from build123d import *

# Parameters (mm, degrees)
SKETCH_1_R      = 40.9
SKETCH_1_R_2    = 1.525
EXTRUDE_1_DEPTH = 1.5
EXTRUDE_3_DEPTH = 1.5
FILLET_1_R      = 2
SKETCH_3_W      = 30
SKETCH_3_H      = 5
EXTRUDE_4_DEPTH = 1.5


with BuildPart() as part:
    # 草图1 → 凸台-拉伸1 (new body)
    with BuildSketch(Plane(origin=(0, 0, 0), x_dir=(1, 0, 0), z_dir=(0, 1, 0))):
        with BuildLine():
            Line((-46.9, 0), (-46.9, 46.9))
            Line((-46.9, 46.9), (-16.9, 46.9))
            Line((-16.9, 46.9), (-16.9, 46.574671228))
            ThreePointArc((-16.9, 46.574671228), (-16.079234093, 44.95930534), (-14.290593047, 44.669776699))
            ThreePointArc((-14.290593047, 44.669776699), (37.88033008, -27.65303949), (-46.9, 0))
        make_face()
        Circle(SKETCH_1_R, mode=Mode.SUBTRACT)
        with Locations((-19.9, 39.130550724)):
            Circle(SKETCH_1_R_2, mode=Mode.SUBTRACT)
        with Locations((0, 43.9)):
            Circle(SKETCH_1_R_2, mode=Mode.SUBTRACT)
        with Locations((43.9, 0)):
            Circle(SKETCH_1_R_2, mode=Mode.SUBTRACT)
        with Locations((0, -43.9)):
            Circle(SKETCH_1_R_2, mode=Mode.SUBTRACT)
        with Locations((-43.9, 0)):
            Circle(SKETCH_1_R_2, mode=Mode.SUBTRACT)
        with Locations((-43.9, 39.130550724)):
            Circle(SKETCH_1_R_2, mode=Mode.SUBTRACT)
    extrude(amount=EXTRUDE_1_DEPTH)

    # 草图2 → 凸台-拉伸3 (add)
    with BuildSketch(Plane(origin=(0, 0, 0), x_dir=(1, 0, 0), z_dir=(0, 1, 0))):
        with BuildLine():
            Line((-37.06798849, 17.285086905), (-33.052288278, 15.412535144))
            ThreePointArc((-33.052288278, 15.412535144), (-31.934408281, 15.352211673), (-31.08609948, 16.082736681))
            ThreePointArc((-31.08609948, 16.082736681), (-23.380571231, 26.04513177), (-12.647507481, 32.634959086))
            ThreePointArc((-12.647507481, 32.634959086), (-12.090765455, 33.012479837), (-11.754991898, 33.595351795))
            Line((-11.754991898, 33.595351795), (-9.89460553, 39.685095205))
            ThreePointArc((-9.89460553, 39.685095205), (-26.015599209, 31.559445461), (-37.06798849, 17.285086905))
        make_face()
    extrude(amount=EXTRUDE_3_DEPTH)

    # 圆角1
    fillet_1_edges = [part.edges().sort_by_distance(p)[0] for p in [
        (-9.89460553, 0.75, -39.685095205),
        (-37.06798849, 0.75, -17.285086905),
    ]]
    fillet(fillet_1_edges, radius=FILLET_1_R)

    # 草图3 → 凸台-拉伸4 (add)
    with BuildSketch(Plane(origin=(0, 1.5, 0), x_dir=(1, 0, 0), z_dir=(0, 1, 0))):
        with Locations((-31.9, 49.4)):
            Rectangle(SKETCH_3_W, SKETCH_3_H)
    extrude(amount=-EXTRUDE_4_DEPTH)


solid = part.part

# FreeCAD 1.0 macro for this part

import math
import FreeCAD as App
import Part
import Sketcher
Q = App.Units.Quantity


def edges_at(feature, points):
    """Names of the edges that pass closest to the given points."""
    edges = feature.Shape.Edges
    near = lambda p: min(range(len(edges)), key=lambda i: edges[i].distToShape(Part.Vertex(*p))[0])
    return sorted({f"Edge{near(p) + 1}" for p in points})


def add_polygon(sketch, points):
    """Adds a closed chain of lines whose ends are joined by coincident constraints."""
    first, n = sketch.GeometryCount, len(points)
    for a, b in zip(points, points[1:] + points[:1]):
        sketch.addGeometry(Part.LineSegment(App.Vector(*a, 0), App.Vector(*b, 0)), False)
    for i in range(n):
        sketch.addConstraint(Sketcher.Constraint("Coincident", first + i, 2, first + (i + 1) % n, 1))

doc = App.newDocument("Part")
params = doc.addObject("Spreadsheet::Sheet", "Params")
for row, (alias, value) in enumerate([
    ("sketch1_radius", "2 mm"),
    ("sketch1_diameter", "81.8 mm"),
    ("sketch1_radius2", "46.9 mm"),
    ("sketch1_diameter2", "3.05 mm"),
    ("sketch1_width", "30 mm"),
    ("pad1_length", "1.5 mm"),
    ("sketch2_radius", "35 mm"),
    ("sketch2_radius2", "1.5 mm"),
    ("sketch2_radius3", "40.9 mm"),
    ("pad2_length", "1.5 mm"),
    ("fillet_radius", "2 mm"),
    ("sketch3_width", "30 mm"),
    ("sketch3_height", "5 mm"),
    ("pad3_length", "1.5 mm"),
], start=1):
    params.set(f"A{row}", alias)
    params.set(f"B{row}", "=" + value)
    params.setAlias(f"B{row}", alias)

body = doc.addObject("PartDesign::Body", "Body")

sketch1 = doc.addObject("Sketcher::SketchObject", "Sketch")
body.addObject(sketch1)
sketch1.AttachmentSupport = (doc.XZ_Plane, [""])
sketch1.MapMode = "FlatFace"
sketch1.addGeometry([
    Part.LineSegment(App.Vector(-46.9, -46.9, 0), App.Vector(-46.9, 0, 0)),
    Part.ArcOfCircle(Part.Circle(App.Vector(0, 0, 0), App.Vector(0, 0, 1), 46.9), math.radians(-108), math.radians(180)),
    Part.ArcOfCircle(Part.Circle(App.Vector(-14.9, -46.57, 0), App.Vector(0, 0, 1), 2), math.radians(72), math.radians(180)),
    Part.LineSegment(App.Vector(-16.9, -46.57, 0), App.Vector(-16.9, -46.9, 0)),
    Part.LineSegment(App.Vector(-16.9, -46.9, 0), App.Vector(-46.9, -46.9, 0)),
    Part.Circle(App.Vector(0, 43.9, 0), App.Vector(0, 0, 1), 1.52),
    Part.Circle(App.Vector(43.9, 0, 0), App.Vector(0, 0, 1), 1.52),
    Part.Circle(App.Vector(0, 0, 0), App.Vector(0, 0, 1), 40.9),
    Part.Circle(App.Vector(-43.9, 0, 0), App.Vector(0, 0, 1), 1.52),
    Part.Circle(App.Vector(0, -43.9, 0), App.Vector(0, 0, 1), 1.52),
    Part.Circle(App.Vector(-19.9, -39.13, 0), App.Vector(0, 0, 1), 1.52),
    Part.Circle(App.Vector(-43.9, -39.13, 0), App.Vector(0, 0, 1), 1.52),
], False)
sketch1.addConstraint([
    Sketcher.Constraint("Tangent", 0, 2, 1, 2),
    Sketcher.Constraint("Tangent", 1, 1, 2, 1),
    Sketcher.Constraint("Tangent", 2, 2, 3, 1),
    Sketcher.Constraint("Coincident", 3, 2, 4, 1),
    Sketcher.Constraint("Coincident", 4, 2, 0, 1),
    Sketcher.Constraint("Vertical", 0),
    Sketcher.Constraint("Vertical", 3),
    Sketcher.Constraint("Horizontal", 4),
    Sketcher.Constraint("Coincident", 1, 3, -1, 1),
    Sketcher.Constraint("Coincident", 7, 3, -1, 1),
    Sketcher.Constraint("Equal", 5, 6),
    Sketcher.Constraint("Equal", 6, 8),
    Sketcher.Constraint("Equal", 8, 9),
    Sketcher.Constraint("Equal", 9, 10),
    Sketcher.Constraint("Equal", 10, 11),
    Sketcher.Constraint("Symmetric", 6, 3, 8, 3, -1, 1),
    Sketcher.Constraint("Symmetric", 5, 3, 9, 3, -1, 1),
    Sketcher.Constraint("PointOnObject", 5, 3, -2),
    Sketcher.Constraint("PointOnObject", 6, 3, -1),
    Sketcher.Constraint("Horizontal", 10, 3, 11, 3),
    Sketcher.Constraint("Vertical", 8, 3, 11, 3),
    Sketcher.Constraint("Radius", 2, Q("2 mm")),
    Sketcher.Constraint("Diameter", 7, Q("81.8 mm")),
    Sketcher.Constraint("Radius", 1, Q("46.9 mm")),
    Sketcher.Constraint("Diameter", 5, Q("3.05 mm")),
    Sketcher.Constraint("DistanceX", 4, 2, 4, 1, Q("30 mm")),
    Sketcher.Constraint("DistanceY", 0, 1, 0, 2, Q("46.9 mm")),
    Sketcher.Constraint("DistanceX", 8, 3, 2, 3, Q("29 mm")),
    Sketcher.Constraint("DistanceX", 10, 3, 2, 3, Q("5 mm")),
    Sketcher.Constraint("DistanceY", 3, 2, 9, 3, Q("3 mm")),
    Sketcher.Constraint("DistanceY", 10, 3, -1, 1, Q("39.130551 mm")),
])
sketch1.setExpression("Constraints[21]", "Params.sketch1_radius")
sketch1.setExpression("Constraints[22]", "Params.sketch1_diameter")
sketch1.setExpression("Constraints[23]", "Params.sketch1_radius2")
sketch1.setExpression("Constraints[24]", "Params.sketch1_diameter2")
sketch1.setExpression("Constraints[25]", "Params.sketch1_width")
pad1 = doc.addObject("PartDesign::Pad", "Pad")
body.addObject(pad1)
pad1.Profile = sketch1
pad1.setExpression("Length", "Params.pad1_length")
pad1.Reversed = True

sketch2 = doc.addObject("Sketcher::SketchObject", "Sketch001")
body.addObject(sketch2)
sketch2.AttachmentSupport = (doc.XZ_Plane, [""])
sketch2.MapMode = "FlatFace"
sketch2.addGeometry([
    Part.LineSegment(App.Vector(-37.1, -17.3, 0), App.Vector(-33.1, -15.4, 0)),
    Part.ArcOfCircle(Part.Circle(App.Vector(-32.4, -16.8, 0), App.Vector(0, 0, 1), 1.5), math.radians(27), math.radians(115)),
    Part.ArcOfCircle(Part.Circle(App.Vector(0, 0, 0), App.Vector(0, 0, 1), 35), math.radians(-153), math.radians(-111)),
    Part.ArcOfCircle(Part.Circle(App.Vector(-13.2, -34, 0), App.Vector(0, 0, 1), 1.5), math.radians(17), math.radians(69)),
    Part.LineSegment(App.Vector(-11.8, -33.6, 0), App.Vector(-9.9, -39.7, 0)),
    Part.ArcOfCircle(Part.Circle(App.Vector(0, 0, 0), App.Vector(0, 0, 1), 40.9), math.radians(-155), math.radians(-104)),
], False)
sketch2.addConstraint([
    Sketcher.Constraint("Tangent", 0, 2, 1, 2),
    Sketcher.Constraint("Tangent", 1, 1, 2, 1),
    Sketcher.Constraint("Tangent", 2, 2, 3, 2),
    Sketcher.Constraint("Tangent", 3, 1, 4, 1),
    Sketcher.Constraint("Coincident", 4, 2, 5, 2),
    Sketcher.Constraint("Coincident", 5, 1, 0, 1),
    Sketcher.Constraint("Coincident", 2, 3, -1, 1),
    Sketcher.Constraint("Coincident", 5, 3, -1, 1),
    Sketcher.Constraint("Equal", 1, 3),
    Sketcher.Constraint("Radius", 2, Q("35 mm")),
    Sketcher.Constraint("Radius", 1, Q("1.5 mm")),
    Sketcher.Constraint("Radius", 5, Q("40.9 mm")),
    Sketcher.Constraint("Angle", 0, Q("25 deg")),
    Sketcher.Constraint("DistanceY", 3, 3, -1, 1, Q("34.0336 mm")),
    Sketcher.Constraint("DistanceX", 1, 1, -1, 1, Q("31.086099 mm")),
    Sketcher.Constraint("DistanceX", 2, 2, 4, 2, Q("2.752902 mm")),
])
sketch2.setExpression("Constraints[9]", "Params.sketch2_radius")
sketch2.setExpression("Constraints[10]", "Params.sketch2_radius2")
sketch2.setExpression("Constraints[11]", "Params.sketch2_radius3")
pad2 = doc.addObject("PartDesign::Pad", "Pad001")
body.addObject(pad2)
pad2.Profile = sketch2
pad2.setExpression("Length", "Params.pad2_length")
pad2.Reversed = True
doc.recompute()

fillet = doc.addObject("PartDesign::Fillet", "Fillet")
body.addObject(fillet)
fillet.Base = (pad2, edges_at(pad2, [(-9.895, 0.75, -39.685), (-37.068, 0.75, -17.285)]))
fillet.setExpression("Radius", "Params.fillet_radius")

sketch3 = doc.addObject("Sketcher::SketchObject", "Sketch002")
body.addObject(sketch3)
sketch3.AttachmentSupport = (doc.XZ_Plane, [""])
sketch3.MapMode = "FlatFace"
sketch3.AttachmentOffset = App.Placement(App.Vector(0, 0, -1.5), App.Rotation())
add_polygon(sketch3, [(-47, -52), (-47, -47), (-17, -47), (-17, -52)])
sketch3.addConstraint([
    Sketcher.Constraint("Vertical", 0),
    Sketcher.Constraint("Horizontal", 1),
    Sketcher.Constraint("Vertical", 2),
    Sketcher.Constraint("Horizontal", 3),
    Sketcher.Constraint("DistanceX", 1, 1, 1, 2, Q("30 mm")),
    Sketcher.Constraint("DistanceY", 0, 1, 0, 2, Q("5 mm")),
    Sketcher.Constraint("DistanceX", 0, 2, -1, 1, Q("46.9 mm")),
    Sketcher.Constraint("DistanceY", 0, 2, -1, 1, Q("46.9 mm")),
])
sketch3.setExpression("Constraints[8]", "Params.sketch3_width")
sketch3.setExpression("Constraints[9]", "Params.sketch3_height")
pad3 = doc.addObject("PartDesign::Pad", "Pad002")
body.addObject(pad3)
pad3.Profile = sketch3
pad3.setExpression("Length", "Params.pad3_length")

doc.recompute()
